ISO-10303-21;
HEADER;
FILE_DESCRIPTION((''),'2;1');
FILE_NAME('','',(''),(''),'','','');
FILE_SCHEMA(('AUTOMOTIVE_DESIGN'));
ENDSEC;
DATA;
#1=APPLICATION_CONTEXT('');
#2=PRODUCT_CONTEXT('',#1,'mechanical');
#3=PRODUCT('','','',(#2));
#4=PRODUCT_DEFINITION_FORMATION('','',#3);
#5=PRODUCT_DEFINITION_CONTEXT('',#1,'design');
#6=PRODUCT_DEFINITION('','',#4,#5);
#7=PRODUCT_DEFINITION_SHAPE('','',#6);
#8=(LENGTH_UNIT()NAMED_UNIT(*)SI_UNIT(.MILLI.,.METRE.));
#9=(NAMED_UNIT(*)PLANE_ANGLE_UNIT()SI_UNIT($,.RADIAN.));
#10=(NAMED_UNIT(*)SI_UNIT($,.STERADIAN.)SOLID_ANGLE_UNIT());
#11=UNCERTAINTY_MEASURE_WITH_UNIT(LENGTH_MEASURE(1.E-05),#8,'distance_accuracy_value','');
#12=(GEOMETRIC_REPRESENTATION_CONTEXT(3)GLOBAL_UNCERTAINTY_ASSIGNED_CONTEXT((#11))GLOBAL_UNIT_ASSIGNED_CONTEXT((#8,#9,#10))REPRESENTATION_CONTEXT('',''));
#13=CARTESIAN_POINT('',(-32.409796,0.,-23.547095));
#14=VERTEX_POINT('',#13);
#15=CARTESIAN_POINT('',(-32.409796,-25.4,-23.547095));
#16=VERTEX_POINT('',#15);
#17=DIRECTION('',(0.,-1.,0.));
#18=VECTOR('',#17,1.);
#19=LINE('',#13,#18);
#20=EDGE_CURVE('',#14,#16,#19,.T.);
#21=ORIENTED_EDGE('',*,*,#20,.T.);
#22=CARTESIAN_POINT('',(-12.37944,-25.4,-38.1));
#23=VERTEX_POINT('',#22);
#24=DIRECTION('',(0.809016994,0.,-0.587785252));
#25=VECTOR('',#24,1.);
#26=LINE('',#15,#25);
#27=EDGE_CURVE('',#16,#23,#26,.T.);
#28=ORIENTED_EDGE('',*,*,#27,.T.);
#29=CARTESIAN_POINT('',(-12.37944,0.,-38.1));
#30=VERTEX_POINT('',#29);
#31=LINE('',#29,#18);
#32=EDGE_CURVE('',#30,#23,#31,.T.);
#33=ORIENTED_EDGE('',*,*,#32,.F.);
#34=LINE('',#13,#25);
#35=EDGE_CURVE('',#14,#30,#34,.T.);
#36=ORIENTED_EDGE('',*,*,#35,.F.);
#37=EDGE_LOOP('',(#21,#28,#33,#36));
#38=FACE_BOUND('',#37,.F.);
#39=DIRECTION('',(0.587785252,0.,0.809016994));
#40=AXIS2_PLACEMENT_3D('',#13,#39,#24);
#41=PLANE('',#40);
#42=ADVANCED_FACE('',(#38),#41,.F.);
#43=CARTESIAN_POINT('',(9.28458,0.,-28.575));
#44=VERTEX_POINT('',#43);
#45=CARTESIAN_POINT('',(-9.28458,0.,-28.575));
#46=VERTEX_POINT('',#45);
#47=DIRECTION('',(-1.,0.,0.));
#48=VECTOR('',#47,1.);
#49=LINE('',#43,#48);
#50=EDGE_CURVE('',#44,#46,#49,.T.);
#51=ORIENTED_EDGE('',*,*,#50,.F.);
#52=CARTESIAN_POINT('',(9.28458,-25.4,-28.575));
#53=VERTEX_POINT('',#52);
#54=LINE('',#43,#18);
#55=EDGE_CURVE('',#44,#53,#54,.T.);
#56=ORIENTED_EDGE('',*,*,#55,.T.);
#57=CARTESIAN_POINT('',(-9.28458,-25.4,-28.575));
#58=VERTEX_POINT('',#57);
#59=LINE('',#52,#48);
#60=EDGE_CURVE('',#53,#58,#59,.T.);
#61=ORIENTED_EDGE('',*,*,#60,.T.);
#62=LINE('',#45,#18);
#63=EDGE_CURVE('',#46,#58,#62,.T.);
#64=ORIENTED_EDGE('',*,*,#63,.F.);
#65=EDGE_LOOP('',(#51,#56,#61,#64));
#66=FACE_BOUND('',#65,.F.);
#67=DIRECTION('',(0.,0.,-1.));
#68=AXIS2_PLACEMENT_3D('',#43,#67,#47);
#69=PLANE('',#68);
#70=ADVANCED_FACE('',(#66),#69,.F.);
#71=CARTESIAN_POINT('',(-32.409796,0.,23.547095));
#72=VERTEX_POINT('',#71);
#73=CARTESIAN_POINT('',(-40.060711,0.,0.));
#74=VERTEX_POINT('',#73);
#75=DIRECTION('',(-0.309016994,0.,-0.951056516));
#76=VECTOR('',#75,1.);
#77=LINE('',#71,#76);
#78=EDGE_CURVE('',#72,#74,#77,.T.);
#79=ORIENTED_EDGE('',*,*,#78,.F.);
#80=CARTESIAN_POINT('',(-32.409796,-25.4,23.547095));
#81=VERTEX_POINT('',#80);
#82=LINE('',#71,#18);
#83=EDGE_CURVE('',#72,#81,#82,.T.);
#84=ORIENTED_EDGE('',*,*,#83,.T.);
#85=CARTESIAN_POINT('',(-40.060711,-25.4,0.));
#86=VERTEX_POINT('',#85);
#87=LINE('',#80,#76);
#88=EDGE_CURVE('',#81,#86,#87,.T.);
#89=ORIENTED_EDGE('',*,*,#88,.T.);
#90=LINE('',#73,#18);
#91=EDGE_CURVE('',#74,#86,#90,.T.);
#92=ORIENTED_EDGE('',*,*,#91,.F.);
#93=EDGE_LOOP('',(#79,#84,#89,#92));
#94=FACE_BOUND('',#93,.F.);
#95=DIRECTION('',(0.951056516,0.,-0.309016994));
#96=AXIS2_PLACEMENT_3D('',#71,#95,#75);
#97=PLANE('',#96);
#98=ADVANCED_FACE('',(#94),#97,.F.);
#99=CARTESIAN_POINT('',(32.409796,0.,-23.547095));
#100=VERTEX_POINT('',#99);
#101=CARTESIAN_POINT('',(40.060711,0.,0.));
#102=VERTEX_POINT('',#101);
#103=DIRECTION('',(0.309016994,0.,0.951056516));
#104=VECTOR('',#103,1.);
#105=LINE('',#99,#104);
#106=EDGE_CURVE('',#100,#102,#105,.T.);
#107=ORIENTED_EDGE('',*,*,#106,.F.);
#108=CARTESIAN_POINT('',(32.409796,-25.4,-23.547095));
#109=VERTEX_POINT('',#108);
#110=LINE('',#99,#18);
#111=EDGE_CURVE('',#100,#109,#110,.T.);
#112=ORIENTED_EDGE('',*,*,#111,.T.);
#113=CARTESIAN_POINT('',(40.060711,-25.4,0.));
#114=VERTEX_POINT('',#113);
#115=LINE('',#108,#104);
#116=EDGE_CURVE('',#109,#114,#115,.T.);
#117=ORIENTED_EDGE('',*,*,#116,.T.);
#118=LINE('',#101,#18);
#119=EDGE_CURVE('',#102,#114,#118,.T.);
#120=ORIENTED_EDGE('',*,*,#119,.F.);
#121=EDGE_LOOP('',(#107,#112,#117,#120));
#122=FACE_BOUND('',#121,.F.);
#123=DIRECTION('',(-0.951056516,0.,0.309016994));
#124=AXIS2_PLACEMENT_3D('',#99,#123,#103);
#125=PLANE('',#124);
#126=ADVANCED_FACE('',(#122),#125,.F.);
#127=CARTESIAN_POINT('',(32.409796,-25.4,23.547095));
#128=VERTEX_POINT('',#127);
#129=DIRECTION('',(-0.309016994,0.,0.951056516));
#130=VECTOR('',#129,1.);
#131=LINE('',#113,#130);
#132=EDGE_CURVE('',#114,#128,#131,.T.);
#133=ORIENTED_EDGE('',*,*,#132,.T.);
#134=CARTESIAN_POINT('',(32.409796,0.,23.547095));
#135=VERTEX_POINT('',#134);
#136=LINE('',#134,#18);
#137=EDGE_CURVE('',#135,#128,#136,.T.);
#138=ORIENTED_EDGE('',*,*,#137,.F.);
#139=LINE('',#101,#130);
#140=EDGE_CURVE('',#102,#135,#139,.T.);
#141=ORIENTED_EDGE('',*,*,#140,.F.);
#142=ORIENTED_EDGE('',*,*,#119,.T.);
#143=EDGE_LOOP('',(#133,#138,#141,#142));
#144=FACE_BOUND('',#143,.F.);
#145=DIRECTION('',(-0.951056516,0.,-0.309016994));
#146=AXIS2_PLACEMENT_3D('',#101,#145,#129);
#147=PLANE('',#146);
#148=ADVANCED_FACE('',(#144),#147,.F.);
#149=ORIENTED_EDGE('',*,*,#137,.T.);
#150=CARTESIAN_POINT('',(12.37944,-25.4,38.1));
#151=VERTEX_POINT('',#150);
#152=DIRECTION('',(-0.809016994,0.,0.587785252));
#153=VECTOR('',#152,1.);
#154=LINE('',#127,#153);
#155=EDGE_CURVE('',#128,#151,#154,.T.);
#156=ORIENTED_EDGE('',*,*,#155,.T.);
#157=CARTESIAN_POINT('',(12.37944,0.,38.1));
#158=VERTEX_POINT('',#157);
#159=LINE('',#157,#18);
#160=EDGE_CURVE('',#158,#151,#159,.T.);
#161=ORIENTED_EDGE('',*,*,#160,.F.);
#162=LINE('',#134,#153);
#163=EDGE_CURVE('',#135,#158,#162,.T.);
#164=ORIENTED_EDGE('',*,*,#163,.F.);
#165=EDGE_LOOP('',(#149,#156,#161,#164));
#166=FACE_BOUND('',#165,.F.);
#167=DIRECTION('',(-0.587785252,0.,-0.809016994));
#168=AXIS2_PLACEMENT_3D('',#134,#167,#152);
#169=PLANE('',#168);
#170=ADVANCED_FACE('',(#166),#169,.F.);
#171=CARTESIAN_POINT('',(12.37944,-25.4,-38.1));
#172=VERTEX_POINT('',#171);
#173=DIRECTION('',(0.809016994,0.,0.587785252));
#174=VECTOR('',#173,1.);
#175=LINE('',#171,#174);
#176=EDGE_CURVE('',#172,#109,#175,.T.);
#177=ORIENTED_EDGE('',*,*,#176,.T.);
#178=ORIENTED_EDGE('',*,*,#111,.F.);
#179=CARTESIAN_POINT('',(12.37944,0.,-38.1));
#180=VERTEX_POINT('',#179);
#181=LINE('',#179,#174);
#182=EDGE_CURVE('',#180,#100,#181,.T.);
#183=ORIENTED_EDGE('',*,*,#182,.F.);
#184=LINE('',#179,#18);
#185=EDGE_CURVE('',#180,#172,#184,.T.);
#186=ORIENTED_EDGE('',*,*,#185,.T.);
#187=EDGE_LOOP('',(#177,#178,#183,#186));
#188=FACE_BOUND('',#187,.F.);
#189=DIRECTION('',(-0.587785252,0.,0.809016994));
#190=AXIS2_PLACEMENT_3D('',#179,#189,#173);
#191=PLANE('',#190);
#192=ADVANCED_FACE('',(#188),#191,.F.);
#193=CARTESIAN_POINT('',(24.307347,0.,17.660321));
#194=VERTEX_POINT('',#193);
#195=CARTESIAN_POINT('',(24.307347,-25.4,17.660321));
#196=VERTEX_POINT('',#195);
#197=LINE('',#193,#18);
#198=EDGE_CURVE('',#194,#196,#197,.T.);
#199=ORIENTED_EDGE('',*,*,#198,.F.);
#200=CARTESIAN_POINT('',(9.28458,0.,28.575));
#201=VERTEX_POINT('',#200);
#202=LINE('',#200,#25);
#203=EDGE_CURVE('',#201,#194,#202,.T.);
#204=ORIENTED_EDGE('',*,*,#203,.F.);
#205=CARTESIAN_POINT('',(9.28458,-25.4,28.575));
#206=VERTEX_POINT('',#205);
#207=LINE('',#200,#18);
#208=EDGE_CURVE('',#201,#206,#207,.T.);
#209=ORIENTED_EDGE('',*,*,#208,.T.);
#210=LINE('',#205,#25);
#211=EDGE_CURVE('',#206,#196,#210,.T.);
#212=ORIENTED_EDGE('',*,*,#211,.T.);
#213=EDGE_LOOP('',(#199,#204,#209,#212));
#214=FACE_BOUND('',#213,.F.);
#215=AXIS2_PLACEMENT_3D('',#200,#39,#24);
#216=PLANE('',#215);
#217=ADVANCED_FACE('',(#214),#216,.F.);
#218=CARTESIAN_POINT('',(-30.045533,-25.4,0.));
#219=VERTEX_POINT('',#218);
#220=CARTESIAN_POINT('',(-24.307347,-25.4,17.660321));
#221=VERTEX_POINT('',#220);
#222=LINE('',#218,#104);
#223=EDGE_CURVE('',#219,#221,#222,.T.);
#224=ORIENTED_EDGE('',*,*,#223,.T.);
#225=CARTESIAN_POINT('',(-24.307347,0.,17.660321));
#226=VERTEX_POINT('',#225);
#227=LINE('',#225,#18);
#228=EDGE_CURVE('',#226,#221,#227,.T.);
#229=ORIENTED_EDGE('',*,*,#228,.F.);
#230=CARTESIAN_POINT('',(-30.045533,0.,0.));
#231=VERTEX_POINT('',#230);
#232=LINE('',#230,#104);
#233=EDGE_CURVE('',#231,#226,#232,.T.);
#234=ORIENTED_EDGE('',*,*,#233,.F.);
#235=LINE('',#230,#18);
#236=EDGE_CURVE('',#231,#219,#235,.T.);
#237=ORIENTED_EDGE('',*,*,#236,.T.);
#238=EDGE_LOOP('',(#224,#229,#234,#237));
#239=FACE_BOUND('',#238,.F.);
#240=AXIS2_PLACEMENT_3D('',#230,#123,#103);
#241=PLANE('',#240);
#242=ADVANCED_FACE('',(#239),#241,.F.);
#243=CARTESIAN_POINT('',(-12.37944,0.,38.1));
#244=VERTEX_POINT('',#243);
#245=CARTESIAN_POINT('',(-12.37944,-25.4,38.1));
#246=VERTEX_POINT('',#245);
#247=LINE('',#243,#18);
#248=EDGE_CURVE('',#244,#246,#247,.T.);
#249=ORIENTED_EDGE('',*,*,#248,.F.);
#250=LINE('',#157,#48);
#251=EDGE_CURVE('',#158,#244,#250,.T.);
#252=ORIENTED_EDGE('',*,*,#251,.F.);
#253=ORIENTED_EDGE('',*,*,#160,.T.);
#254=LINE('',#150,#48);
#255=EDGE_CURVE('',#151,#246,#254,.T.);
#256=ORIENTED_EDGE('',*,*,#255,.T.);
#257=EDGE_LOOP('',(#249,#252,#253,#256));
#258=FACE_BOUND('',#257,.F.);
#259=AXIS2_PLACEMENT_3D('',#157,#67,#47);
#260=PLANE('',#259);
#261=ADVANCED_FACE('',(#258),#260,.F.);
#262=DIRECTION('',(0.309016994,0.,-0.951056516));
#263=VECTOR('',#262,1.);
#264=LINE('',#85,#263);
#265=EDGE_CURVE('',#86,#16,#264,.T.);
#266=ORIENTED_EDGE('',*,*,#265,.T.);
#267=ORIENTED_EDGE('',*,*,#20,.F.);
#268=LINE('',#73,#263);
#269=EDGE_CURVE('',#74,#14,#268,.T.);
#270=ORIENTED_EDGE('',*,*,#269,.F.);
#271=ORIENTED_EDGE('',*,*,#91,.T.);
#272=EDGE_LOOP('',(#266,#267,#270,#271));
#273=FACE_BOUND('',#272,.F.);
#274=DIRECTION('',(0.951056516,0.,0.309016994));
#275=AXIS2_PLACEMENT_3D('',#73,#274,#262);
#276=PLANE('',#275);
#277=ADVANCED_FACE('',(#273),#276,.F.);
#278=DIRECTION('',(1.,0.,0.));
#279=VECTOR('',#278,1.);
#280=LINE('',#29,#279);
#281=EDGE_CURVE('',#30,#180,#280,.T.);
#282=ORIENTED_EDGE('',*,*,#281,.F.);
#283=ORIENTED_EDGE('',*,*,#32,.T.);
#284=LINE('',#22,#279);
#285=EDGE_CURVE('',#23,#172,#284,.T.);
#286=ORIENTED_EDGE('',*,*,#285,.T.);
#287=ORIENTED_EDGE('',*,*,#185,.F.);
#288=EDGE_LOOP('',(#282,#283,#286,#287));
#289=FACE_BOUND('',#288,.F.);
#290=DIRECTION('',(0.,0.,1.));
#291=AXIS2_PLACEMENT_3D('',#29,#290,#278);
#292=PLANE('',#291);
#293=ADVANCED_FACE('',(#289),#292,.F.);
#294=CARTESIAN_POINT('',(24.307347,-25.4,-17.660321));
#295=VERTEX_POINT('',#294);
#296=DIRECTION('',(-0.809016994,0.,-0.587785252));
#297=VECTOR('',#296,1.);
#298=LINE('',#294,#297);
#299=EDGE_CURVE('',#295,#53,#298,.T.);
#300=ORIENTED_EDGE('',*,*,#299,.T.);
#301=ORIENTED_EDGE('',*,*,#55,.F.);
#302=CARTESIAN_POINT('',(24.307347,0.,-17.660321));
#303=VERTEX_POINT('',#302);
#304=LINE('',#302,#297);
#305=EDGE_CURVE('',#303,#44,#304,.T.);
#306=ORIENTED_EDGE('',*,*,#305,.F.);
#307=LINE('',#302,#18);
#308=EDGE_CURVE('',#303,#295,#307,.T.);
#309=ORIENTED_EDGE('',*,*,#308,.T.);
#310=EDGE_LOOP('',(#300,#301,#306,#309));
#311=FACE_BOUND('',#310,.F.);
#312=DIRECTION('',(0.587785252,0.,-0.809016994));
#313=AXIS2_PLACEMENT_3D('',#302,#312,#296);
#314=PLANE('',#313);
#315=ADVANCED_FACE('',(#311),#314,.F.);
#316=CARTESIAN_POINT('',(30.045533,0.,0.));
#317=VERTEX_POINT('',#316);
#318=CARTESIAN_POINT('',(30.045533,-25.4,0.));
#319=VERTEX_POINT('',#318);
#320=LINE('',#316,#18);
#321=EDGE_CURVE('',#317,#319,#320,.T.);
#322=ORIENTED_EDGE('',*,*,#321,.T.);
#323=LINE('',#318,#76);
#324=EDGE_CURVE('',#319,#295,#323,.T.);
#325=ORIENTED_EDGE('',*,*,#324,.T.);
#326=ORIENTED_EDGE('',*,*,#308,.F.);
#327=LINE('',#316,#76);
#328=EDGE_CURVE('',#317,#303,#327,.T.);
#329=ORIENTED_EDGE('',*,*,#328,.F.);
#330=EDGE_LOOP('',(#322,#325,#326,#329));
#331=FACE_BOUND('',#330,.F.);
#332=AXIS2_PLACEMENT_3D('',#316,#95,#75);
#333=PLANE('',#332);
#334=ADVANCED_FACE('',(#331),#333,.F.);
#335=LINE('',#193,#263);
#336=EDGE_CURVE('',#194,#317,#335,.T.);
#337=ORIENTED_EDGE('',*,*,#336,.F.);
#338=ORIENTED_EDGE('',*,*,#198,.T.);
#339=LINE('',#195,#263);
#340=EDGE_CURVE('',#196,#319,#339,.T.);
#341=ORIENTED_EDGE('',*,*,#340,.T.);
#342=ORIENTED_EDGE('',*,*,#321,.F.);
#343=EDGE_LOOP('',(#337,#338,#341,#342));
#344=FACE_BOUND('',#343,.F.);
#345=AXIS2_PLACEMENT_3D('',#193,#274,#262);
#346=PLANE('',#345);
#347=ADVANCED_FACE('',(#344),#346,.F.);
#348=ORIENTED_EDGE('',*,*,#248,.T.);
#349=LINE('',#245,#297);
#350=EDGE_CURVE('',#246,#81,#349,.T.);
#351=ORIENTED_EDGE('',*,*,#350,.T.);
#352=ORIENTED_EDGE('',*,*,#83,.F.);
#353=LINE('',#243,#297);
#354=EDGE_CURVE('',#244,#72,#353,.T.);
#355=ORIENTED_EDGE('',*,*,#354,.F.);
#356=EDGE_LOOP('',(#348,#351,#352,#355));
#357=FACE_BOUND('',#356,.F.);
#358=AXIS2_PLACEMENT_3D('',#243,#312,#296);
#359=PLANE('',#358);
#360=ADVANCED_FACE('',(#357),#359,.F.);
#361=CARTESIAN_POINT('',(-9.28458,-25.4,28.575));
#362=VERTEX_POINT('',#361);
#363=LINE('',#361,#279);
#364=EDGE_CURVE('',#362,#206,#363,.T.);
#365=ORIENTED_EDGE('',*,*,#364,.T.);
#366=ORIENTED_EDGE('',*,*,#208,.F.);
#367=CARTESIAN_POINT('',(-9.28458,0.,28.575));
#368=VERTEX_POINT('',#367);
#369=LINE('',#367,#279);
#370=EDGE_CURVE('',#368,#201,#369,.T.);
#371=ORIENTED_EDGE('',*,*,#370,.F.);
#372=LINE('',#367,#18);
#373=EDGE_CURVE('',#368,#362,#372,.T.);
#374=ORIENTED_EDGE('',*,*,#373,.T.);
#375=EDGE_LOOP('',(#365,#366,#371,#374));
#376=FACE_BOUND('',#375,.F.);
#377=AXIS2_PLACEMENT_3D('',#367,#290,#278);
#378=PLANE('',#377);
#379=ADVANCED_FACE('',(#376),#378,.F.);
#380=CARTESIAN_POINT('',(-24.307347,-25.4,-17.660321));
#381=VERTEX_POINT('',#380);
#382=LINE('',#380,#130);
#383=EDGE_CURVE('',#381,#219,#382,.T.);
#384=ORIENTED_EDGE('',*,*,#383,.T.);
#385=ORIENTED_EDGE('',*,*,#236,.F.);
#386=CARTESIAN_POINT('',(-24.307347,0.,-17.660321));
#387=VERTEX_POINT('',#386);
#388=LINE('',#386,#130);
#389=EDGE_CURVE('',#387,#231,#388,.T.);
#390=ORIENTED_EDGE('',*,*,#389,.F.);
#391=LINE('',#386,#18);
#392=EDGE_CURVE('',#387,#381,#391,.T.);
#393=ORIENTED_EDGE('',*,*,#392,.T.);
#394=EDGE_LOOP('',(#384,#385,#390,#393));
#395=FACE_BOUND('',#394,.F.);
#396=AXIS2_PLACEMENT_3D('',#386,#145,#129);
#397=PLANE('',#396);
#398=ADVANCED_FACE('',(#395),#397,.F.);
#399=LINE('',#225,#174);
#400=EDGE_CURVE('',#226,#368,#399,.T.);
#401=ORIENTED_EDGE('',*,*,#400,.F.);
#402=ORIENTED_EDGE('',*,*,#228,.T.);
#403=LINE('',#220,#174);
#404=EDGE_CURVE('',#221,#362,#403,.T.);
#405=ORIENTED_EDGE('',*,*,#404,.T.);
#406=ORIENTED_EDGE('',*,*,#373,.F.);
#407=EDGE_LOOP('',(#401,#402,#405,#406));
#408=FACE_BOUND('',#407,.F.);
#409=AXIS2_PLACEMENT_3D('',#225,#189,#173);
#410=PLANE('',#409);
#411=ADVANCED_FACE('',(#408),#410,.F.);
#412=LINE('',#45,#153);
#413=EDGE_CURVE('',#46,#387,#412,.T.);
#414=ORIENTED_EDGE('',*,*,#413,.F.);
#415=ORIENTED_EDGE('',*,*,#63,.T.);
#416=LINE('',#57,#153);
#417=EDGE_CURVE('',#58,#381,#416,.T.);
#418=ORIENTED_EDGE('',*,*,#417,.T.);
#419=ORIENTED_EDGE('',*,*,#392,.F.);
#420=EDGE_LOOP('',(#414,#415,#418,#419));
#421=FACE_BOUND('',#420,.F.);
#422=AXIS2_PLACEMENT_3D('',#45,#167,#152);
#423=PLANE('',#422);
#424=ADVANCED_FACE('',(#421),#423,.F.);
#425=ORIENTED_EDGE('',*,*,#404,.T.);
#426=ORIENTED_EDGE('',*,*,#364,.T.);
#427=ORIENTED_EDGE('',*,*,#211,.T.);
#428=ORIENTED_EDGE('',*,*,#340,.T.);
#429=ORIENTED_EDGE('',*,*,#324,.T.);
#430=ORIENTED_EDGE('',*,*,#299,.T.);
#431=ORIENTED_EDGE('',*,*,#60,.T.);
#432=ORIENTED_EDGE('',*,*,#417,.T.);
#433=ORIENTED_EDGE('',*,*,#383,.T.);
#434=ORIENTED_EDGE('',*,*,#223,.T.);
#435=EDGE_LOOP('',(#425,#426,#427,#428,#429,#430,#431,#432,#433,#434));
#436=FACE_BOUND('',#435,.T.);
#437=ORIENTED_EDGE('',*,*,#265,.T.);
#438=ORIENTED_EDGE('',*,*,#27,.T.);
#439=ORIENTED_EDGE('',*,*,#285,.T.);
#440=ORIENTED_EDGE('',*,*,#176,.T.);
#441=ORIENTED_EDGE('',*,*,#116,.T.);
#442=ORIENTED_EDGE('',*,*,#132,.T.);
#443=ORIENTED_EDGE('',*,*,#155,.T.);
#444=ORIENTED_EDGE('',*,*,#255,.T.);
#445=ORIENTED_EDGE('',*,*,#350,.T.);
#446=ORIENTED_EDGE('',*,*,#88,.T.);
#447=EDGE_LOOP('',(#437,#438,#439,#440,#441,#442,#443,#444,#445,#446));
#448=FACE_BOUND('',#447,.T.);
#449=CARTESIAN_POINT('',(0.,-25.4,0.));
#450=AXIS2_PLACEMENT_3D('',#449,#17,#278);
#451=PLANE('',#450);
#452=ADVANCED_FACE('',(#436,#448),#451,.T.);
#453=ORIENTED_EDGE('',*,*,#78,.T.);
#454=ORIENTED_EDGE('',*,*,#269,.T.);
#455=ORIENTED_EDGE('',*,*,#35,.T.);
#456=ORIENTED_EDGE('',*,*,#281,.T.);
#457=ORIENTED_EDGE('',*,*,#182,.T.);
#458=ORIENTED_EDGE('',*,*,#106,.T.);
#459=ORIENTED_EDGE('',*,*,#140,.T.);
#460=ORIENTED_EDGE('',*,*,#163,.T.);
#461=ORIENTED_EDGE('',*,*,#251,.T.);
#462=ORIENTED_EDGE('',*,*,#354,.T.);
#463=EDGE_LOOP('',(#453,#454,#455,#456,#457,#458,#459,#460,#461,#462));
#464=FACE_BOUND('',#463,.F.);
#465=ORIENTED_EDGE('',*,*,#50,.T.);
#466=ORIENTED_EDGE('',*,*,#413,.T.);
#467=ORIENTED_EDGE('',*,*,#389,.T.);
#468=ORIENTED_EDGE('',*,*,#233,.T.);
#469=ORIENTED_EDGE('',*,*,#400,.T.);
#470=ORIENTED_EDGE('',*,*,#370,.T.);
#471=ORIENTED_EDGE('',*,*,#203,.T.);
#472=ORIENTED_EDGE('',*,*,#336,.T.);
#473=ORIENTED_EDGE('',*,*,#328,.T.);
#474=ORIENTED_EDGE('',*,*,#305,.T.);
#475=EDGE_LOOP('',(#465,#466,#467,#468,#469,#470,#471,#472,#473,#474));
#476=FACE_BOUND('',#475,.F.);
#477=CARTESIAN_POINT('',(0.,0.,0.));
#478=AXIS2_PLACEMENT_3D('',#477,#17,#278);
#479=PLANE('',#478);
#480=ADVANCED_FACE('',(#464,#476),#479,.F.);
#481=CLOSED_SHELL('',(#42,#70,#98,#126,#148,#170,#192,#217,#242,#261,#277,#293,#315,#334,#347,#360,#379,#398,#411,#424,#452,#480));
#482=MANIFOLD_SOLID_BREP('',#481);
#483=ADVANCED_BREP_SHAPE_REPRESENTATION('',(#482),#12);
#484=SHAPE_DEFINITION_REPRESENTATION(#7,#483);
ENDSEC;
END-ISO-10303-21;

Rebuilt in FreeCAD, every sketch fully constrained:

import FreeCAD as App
import Part
import Sketcher
Q = App.Units.Quantity


def add_polygon(sketch, points):
    """Adds a closed chain of lines whose ends are joined by coincident constraints."""
    first, n = sketch.GeometryCount, len(points)
    for a, b in zip(points, points[1:] + points[:1]):
        sketch.addGeometry(Part.LineSegment(App.Vector(*a, 0), App.Vector(*b, 0)), False)
    for i in range(n):
        sketch.addConstraint(Sketcher.Constraint("Coincident", first + i, 2, first + (i + 1) % n, 1))

doc = App.newDocument("Part")
body = doc.addObject("PartDesign::Body", "Body")

# Sketch on XZ plane
sketch1 = body.newObject("Sketcher::SketchObject", "Sketch")
sketch1.AttachmentSupport = (doc.getObject("XZ_Plane"), [""])
sketch1.MapMode = "FlatFace"
add_polygon(sketch1, [(12.37944, 38.1), (-12.37944, 38.1), (-32.409796, 23.547095), (-40.060711, 0), (-32.409796, -23.547095), (-12.37944, -38.1), (12.37944, -38.1), (32.409796, -23.547095), (40.060711, 0), (32.409796, 23.547095)])  # lines 0-9
add_polygon(sketch1, [(-24.307347, 17.660321), (-9.28458, 28.575), (9.28458, 28.575), (24.307347, 17.660321), (30.045533, 0), (24.307347, -17.660321), (9.28458, -28.575), (-9.28458, -28.575), (-24.307347, -17.660321), (-30.045533, 0)])  # lines 10-19
sketch1.addConstraint([
    Sketcher.Constraint("Horizontal", 0),
    Sketcher.Constraint("Horizontal", 5),
    Sketcher.Constraint("Horizontal", 11),
    Sketcher.Constraint("Horizontal", 16),
    Sketcher.Constraint("Symmetric", 0, 2, 5, 2, -1, 1),
    Sketcher.Constraint("Symmetric", 1, 2, 6, 2, -1, 1),
    Sketcher.Constraint("Symmetric", 2, 2, 7, 2, -1, 1),
    Sketcher.Constraint("Symmetric", 3, 2, 8, 2, -1, 1),
    Sketcher.Constraint("Symmetric", 10, 2, 15, 2, -1, 1),
    Sketcher.Constraint("Symmetric", 12, 2, 17, 2, -1, 1),
    Sketcher.Constraint("Symmetric", 13, 2, 18, 2, -1, 1),
    Sketcher.Constraint("Symmetric", 14, 2, 19, 2, -1, 1),
    Sketcher.Constraint("Symmetric", 3, 2, 6, 2, -2),
    Sketcher.Constraint("Symmetric", 14, 2, 17, 2, -2),
    Sketcher.Constraint("PointOnObject", 2, 2, -1),
    Sketcher.Constraint("PointOnObject", 13, 2, -1),
    Sketcher.Constraint("Parallel", 4, 9),
    Sketcher.Constraint("Parallel", 6, 10),
    Sketcher.Constraint("Parallel", 9, 12),
    Sketcher.Constraint("Parallel", 8, 13),
    Sketcher.Constraint("Parallel", 12, 17),
    Sketcher.Constraint("Vertical", 0, 2, 4, 2),
    Sketcher.Constraint("Equal", 1, 2),
    Sketcher.Constraint("Equal", 12, 13),
    Sketcher.Constraint("Angle", 1, Q("-144 deg")),
    Sketcher.Constraint("Angle", 2, Q("-108 deg")),
    Sketcher.Constraint("DistanceY", 4, 2, 0, 2, Q("3 in")),
    Sketcher.Constraint("DistanceY", -1, 1, 10, 2, Q("1.125 in")),
    Sketcher.Constraint("DistanceX", 0, 2, 0, 1, Q("24.758881 mm")),
    Sketcher.Constraint("DistanceX", 11, 1, 11, 2, Q("18.569161 mm")),
])
pad1 = body.newObject("PartDesign::Pad", "Pad")
pad1.Profile = sketch1
pad1.Length = Q("1 in")

doc.recompute()
